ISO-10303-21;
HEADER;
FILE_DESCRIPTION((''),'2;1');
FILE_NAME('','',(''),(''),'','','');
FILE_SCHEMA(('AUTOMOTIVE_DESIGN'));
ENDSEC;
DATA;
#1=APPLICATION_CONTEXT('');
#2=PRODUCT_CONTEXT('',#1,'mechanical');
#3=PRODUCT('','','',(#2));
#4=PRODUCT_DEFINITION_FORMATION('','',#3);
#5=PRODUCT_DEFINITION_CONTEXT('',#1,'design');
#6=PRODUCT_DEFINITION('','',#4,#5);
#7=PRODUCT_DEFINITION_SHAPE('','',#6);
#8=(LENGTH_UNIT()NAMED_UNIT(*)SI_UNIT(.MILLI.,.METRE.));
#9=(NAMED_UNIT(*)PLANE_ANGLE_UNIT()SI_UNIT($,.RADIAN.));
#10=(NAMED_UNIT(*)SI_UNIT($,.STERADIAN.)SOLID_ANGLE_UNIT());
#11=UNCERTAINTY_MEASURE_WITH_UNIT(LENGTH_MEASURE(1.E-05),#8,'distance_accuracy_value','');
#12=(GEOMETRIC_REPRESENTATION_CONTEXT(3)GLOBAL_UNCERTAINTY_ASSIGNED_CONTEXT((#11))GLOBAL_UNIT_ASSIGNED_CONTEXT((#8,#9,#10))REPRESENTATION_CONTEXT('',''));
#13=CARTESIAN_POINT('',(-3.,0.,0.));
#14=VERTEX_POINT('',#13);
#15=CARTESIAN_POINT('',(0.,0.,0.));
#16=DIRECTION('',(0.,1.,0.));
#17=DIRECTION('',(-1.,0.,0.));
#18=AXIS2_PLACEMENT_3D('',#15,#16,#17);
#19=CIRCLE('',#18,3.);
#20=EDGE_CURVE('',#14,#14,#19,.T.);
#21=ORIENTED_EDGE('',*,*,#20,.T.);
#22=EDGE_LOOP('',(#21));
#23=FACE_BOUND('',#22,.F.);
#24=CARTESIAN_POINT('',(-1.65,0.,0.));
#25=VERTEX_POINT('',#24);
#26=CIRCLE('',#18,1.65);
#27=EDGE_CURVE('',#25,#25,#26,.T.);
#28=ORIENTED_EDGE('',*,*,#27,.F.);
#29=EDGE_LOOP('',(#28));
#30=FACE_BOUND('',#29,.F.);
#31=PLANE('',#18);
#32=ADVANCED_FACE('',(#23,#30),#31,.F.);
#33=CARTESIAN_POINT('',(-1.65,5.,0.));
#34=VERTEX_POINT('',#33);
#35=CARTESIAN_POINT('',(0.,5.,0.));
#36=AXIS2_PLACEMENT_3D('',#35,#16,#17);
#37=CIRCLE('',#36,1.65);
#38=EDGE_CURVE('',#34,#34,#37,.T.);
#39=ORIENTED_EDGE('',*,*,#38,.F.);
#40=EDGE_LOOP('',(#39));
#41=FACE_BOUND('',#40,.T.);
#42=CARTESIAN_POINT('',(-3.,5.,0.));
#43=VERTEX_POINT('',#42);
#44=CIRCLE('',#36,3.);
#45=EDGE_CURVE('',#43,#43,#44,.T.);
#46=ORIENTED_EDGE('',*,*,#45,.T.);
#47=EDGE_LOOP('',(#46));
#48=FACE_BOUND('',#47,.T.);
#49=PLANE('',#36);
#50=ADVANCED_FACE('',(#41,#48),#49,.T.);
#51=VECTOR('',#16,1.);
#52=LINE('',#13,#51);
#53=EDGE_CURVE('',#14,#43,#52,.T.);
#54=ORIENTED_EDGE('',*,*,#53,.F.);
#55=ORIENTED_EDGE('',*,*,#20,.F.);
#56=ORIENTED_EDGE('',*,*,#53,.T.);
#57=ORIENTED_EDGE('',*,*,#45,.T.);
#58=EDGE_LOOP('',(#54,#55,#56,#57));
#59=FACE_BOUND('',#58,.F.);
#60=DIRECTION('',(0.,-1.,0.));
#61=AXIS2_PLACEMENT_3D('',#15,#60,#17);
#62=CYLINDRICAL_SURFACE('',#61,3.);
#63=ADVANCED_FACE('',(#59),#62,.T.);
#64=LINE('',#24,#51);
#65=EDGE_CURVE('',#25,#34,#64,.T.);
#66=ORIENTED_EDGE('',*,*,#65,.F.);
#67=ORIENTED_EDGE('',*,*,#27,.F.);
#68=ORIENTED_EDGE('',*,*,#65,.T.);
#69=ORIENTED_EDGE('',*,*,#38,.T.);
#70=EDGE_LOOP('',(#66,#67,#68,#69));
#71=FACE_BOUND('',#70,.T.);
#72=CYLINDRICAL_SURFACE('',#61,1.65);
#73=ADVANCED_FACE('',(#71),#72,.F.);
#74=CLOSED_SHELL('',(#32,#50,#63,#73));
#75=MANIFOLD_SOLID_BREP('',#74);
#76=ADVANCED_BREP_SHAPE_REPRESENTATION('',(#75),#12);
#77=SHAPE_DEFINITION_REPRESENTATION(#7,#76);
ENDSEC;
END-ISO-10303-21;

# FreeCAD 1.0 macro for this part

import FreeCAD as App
import Part
import Sketcher
Q = App.Units.Quantity

doc = App.newDocument("Part")
body = doc.addObject("PartDesign::Body", "Body")

# Sketch on XZ plane
sketch1 = body.newObject("Sketcher::SketchObject", "Sketch")
sketch1.AttachmentSupport = (doc.getObject("XZ_Plane"), [""])
sketch1.MapMode = "FlatFace"
sketch1.addGeometry([
    Part.Circle(App.Vector(0, 0, 0), App.Vector(0, 0, 1), 3),
    Part.Circle(App.Vector(0, 0, 0), App.Vector(0, 0, 1), 1.65),
], False)
sketch1.addConstraint([
    Sketcher.Constraint("Coincident", 0, 3, -1, 1),
    Sketcher.Constraint("Coincident", 1, 3, -1, 1),
    Sketcher.Constraint("Diameter", 0, Q("6 mm")),
    Sketcher.Constraint("Diameter", 1, Q("3.3 mm")),
])
pad1 = body.newObject("PartDesign::Pad", "Pad")
pad1.Profile = sketch1
pad1.Length = 5
pad1.Reversed = True

doc.recompute()
